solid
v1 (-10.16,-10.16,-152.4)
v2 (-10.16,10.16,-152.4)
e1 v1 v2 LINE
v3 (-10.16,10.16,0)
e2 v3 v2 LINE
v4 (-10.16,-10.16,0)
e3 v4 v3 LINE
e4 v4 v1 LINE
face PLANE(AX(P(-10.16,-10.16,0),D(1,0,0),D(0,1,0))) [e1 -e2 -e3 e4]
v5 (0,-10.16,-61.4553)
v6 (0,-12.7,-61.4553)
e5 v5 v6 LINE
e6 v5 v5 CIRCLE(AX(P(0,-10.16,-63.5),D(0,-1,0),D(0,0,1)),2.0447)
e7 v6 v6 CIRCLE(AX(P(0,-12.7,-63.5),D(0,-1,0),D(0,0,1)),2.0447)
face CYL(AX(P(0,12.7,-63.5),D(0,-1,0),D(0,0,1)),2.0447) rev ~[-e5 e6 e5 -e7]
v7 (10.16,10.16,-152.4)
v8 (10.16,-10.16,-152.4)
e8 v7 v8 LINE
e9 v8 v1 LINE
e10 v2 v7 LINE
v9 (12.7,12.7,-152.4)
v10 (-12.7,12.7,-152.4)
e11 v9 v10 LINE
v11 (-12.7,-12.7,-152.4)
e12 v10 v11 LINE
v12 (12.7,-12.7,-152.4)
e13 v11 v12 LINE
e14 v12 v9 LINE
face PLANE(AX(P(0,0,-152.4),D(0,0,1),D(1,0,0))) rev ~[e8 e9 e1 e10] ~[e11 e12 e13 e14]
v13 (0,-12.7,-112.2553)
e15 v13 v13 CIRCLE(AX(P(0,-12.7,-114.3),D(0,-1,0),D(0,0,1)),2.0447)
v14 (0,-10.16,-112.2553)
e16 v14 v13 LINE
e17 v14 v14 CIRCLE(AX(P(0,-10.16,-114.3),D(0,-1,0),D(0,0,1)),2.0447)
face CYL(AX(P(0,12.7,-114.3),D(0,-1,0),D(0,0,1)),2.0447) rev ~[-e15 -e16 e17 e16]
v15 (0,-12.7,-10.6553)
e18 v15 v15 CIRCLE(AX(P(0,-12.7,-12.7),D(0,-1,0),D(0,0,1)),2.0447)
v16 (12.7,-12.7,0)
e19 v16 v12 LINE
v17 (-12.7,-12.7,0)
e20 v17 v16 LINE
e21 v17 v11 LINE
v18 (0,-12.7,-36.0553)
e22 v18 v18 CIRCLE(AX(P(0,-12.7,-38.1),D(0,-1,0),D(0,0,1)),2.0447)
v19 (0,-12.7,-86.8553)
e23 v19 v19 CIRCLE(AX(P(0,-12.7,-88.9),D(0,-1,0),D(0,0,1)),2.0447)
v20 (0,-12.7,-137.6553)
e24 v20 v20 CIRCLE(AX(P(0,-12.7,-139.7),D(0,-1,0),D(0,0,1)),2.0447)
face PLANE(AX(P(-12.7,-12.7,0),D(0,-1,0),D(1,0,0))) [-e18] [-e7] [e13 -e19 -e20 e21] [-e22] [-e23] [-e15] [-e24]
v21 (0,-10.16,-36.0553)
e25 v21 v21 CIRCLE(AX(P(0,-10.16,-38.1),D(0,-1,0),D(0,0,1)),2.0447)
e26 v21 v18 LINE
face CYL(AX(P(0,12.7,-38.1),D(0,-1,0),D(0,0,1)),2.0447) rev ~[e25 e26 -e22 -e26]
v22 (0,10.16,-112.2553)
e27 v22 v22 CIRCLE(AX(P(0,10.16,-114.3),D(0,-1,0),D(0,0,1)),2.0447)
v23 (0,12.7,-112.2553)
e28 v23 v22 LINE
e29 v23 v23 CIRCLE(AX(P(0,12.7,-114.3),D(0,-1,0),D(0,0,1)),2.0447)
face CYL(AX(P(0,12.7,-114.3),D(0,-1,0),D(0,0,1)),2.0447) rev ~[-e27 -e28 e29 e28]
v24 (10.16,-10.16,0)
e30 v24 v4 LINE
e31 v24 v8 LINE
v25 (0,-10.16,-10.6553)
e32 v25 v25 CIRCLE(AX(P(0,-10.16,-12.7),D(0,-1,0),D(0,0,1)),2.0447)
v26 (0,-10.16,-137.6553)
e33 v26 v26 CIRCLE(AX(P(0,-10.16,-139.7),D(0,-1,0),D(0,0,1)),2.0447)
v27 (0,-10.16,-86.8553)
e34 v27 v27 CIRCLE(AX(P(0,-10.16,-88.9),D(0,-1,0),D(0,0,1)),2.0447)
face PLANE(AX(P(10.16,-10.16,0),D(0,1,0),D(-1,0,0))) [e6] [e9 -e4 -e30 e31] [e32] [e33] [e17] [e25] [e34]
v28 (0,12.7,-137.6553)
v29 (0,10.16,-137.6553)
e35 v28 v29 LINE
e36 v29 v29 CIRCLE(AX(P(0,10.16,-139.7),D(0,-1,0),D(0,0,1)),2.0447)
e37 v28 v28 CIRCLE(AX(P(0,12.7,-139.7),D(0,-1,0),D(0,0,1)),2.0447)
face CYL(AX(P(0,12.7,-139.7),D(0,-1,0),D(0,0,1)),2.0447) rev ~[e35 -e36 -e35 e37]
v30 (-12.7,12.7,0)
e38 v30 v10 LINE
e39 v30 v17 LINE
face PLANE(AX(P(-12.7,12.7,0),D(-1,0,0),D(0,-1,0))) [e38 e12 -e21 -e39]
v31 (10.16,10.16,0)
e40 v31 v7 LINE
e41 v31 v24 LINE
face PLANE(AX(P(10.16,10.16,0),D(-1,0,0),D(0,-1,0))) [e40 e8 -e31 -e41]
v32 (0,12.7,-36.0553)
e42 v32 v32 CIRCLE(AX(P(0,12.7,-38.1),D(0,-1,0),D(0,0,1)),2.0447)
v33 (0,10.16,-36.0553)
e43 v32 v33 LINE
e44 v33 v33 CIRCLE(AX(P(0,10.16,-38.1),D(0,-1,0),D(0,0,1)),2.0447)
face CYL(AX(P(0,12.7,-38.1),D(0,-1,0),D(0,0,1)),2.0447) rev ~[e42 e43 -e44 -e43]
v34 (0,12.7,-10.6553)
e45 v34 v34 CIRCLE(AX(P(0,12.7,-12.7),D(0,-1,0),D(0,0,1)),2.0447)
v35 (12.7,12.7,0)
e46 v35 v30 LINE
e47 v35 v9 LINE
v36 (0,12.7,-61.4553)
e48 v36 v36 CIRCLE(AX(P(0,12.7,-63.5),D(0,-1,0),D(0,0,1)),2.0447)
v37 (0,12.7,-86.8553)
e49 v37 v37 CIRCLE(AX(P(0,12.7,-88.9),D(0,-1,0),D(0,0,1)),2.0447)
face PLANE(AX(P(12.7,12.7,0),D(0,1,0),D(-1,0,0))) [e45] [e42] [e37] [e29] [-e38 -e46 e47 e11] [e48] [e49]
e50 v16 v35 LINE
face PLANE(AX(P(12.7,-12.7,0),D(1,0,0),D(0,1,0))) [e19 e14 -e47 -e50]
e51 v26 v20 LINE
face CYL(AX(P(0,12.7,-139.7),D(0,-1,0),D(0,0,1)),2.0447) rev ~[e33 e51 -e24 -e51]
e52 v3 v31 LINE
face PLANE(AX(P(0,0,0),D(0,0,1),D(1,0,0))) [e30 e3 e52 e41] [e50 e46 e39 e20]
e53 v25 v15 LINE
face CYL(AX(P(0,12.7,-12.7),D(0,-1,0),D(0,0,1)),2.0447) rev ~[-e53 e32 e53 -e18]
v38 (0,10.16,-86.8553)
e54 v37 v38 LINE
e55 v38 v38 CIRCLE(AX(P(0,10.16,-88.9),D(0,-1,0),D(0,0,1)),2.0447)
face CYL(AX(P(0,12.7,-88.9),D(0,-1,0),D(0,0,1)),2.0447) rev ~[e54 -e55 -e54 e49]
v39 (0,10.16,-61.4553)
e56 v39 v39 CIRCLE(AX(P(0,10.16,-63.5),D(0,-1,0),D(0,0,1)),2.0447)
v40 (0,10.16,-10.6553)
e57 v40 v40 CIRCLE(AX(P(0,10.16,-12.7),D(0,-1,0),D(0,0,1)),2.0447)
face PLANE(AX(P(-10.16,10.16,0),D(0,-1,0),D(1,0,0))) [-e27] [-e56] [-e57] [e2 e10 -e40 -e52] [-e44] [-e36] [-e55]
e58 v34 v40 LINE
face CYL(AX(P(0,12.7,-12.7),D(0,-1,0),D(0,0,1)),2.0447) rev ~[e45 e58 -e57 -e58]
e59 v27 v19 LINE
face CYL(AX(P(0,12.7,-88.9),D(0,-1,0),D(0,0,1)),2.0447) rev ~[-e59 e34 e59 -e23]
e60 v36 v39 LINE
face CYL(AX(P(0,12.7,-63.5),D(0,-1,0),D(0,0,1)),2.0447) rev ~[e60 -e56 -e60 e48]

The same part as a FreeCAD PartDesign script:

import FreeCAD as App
import Part
import Sketcher

V = App.Vector
Q = App.Units.Quantity


def add_polygon(sketch, points):
    """Adds a closed chain of lines whose ends are joined by coincident constraints."""
    first, n = sketch.GeometryCount, len(points)
    for a, b in zip(points, points[1:] + points[:1]):
        sketch.addGeometry(Part.LineSegment(App.Vector(*a, 0), App.Vector(*b, 0)), False)
    for i in range(n):
        sketch.addConstraint(Sketcher.Constraint("Coincident", first + i, 2, first + (i + 1) % n, 1))

doc = App.newDocument("Part")
body = doc.addObject("PartDesign::Body", "Body")

sketch1 = doc.addObject("Sketcher::SketchObject", "Sketch")
body.addObject(sketch1)
sketch1.AttachmentSupport = (doc.XY_Plane, [""])
sketch1.MapMode = "FlatFace"
add_polygon(sketch1, [(-13, 13), (-13, -13), (13, -13), (13, 13)])
add_polygon(sketch1, [(-10, -10), (-10, 10), (10, 10), (10, -10)])
sketch1.addConstraint([
    Sketcher.Constraint("Vertical", 0),
    Sketcher.Constraint("Horizontal", 1),
    Sketcher.Constraint("Vertical", 2),
    Sketcher.Constraint("Horizontal", 3),
    Sketcher.Constraint("Vertical", 4),
    Sketcher.Constraint("Horizontal", 5),
    Sketcher.Constraint("Vertical", 6),
    Sketcher.Constraint("Horizontal", 7),
    Sketcher.Constraint("Symmetric", 0, 2, 2, 2, -1, 1),
    Sketcher.Constraint("Symmetric", 4, 2, 6, 2, -1, 1),
    Sketcher.Constraint("Equal", 3, 0),
    Sketcher.Constraint("Equal", 7, 4),
    Sketcher.Constraint("DistanceX", 1, 1, 1, 2, Q("1 in")),
    Sketcher.Constraint("DistanceX", 3, 2, 4, 2, Q("0.1 in")),
])
pad1 = doc.addObject("PartDesign::Pad", "Pad")
body.addObject(pad1)
pad1.Profile = sketch1
pad1.Length = Q("6 in")
pad1.Reversed = True

sketch2 = doc.addObject("Sketcher::SketchObject", "Sketch001")
body.addObject(sketch2)
sketch2.AttachmentSupport = (doc.XZ_Plane, [""])
sketch2.MapMode = "FlatFace"
sketch2.AttachmentOffset = App.Placement(V(0, 0, -0.5 * 25.4), App.Rotation())
sketch2.addGeometry(Part.Circle(V(0, -12.7, 0), V(0, 0, 1), 2), False)
sketch2.addConstraint([
    Sketcher.Constraint("PointOnObject", 0, 3, -2),
    Sketcher.Constraint("Diameter", 0, Q("0.161 in")),
    Sketcher.Constraint("DistanceY", 0, 3, -1, 1, Q("0.5 in")),
])
doc.recompute()
hole = doc.addObject("PartDesign::Hole", "Hole")
body.addObject(hole)
hole.Profile = sketch2
hole.ThreadType = "None"
hole.Diameter = Q("0.161 in")
hole.DepthType = "ThroughAll"
hole.Reversed = True
doc.recompute()

linearpattern = doc.addObject("PartDesign::LinearPattern", "LinearPattern")
body.addObject(linearpattern)
linearpattern.Originals = [hole]
linearpattern.Direction = (doc.Z_Axis, [""])
linearpattern.Mode = "offset"
linearpattern.Offset = Q("1 in")
linearpattern.Occurrences = 7
linearpattern.Reversed = True
body.Tip = linearpattern

doc.recompute()
